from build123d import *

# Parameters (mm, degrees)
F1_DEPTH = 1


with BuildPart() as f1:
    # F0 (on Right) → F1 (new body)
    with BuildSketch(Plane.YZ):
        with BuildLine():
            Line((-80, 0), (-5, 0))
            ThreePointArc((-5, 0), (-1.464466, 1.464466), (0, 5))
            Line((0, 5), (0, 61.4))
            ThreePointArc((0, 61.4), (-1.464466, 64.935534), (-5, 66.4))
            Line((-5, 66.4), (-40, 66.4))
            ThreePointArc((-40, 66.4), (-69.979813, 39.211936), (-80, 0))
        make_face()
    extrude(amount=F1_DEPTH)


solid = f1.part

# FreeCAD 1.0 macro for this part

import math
import FreeCAD as App
import Part
import Sketcher

V = App.Vector
Q = App.Units.Quantity

doc = App.newDocument("Part")
params = doc.addObject("Spreadsheet::Sheet", "Params")
for row, (alias, value) in enumerate([
    ("sketch1_radius", "5 mm"),
    ("sketch1_width", "75 mm"),
    ("sketch1_width2", "35 mm"),
    ("sketch1_height", "56.4 mm"),
    ("pad1_length", "1 mm"),
], start=1):
    params.set(f"A{row}", alias)
    params.set(f"B{row}", "=" + value)
    params.setAlias(f"B{row}", alias)

body = doc.addObject("PartDesign::Body", "Body")

# Sketch on YZ plane
sketch1 = body.newObject("Sketcher::SketchObject", "Sketch")
sketch1.AttachmentSupport = (doc.getObject("YZ_Plane"), [""])
sketch1.MapMode = "FlatFace"
sketch1.addGeometry([
    Part.LineSegment(V(-80, 0, 0), V(-5, 0, 0)),  # 0
    Part.ArcOfCircle(Part.Circle(V(-5, 5, 0), V(0, 0, 1), 5), math.radians(-90.000004), math.radians(0.000004)),  # 1
    Part.LineSegment(V(0, 5, 0), V(0, 61.4, 0)),  # 2
    Part.ArcOfCircle(Part.Circle(V(-5, 61.4, 0), V(0, 0, 1), 5), math.radians(-0.000004), math.radians(90.000004)),  # 3
    Part.LineSegment(V(-5, 66.4, 0), V(-40, 66.4, 0)),  # 4
    Part.ArcOfCircle(Part.Circle(V(-9.766428, 2.938812, 0), V(0, 0, 1), 70.29503), math.radians(115.473617), math.radians(182.396053)),  # 5
], False)
sketch1.addConstraint([
    Sketcher.Constraint("Tangent", 0, 2, 1, 1),
    Sketcher.Constraint("Tangent", 1, 2, 2, 1),
    Sketcher.Constraint("Tangent", 2, 2, 3, 1),
    Sketcher.Constraint("Tangent", 3, 2, 4, 1),
    Sketcher.Constraint("Coincident", 4, 2, 5, 1),
    Sketcher.Constraint("Coincident", 5, 2, 0, 1),
    Sketcher.Constraint("Horizontal", 0),
    Sketcher.Constraint("Vertical", 2),
    Sketcher.Constraint("Horizontal", 4),
    Sketcher.Constraint("Equal", 1, 3),
    Sketcher.Constraint("PointOnObject", 0, 2, -1),
    Sketcher.Constraint("PointOnObject", 1, 2, -2),
    Sketcher.Constraint("Radius", 1, Q("5 mm")),
    Sketcher.Constraint("DistanceX", 0, 1, 0, 2, Q("75 mm")),
    Sketcher.Constraint("DistanceX", 4, 2, 4, 1, Q("35 mm")),
    Sketcher.Constraint("DistanceY", 2, 1, 2, 2, Q("56.4 mm")),
    Sketcher.Constraint("Radius", 5, Q("70.29503 mm")),
])
sketch1.setExpression("Constraints[12]", "Params.sketch1_radius")
sketch1.setExpression("Constraints[13]", "Params.sketch1_width")
sketch1.setExpression("Constraints[14]", "Params.sketch1_width2")
sketch1.setExpression("Constraints[15]", "Params.sketch1_height")
pad1 = body.newObject("PartDesign::Pad", "Pad")
pad1.Profile = sketch1
pad1.setExpression("Length", "Params.pad1_length")

doc.recompute()
